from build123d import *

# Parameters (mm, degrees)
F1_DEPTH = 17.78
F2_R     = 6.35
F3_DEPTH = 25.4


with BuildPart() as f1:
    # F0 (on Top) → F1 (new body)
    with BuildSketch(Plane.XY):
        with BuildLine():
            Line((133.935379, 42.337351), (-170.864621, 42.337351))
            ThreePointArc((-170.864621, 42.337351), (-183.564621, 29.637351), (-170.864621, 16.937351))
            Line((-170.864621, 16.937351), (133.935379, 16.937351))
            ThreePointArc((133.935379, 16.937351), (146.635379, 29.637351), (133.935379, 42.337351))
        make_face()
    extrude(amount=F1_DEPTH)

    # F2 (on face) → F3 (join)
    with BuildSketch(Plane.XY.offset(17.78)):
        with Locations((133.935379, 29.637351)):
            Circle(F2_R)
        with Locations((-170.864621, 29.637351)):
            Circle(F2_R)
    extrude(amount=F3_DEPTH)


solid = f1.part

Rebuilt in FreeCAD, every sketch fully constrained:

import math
import FreeCAD as App
import Part
import Sketcher

V = App.Vector
Q = App.Units.Quantity

doc = App.newDocument("Part")
body = doc.addObject("PartDesign::Body", "Body")

sketch1 = doc.addObject("Sketcher::SketchObject", "Sketch")
body.addObject(sketch1)
sketch1.AttachmentSupport = (doc.XY_Plane, [""])
sketch1.MapMode = "FlatFace"
sketch1.addGeometry(Part.LineSegment(V(134, 42, 0), V(-171, 42, 0)), False)
sketch1.addGeometry(Part.ArcOfCircle(Part.Circle(V(-171, 30, 0), V(0, 0, 1), 13), math.radians(90), math.radians(270)), False)
sketch1.addGeometry(Part.LineSegment(V(-171, 17, 0), V(134, 17, 0)), False)
sketch1.addGeometry(Part.ArcOfCircle(Part.Circle(V(134, 30, 0), V(0, 0, 1), 13), math.radians(-90), math.radians(90)), False)
sketch1.addConstraint(Sketcher.Constraint("Tangent", 0, 2, 1, 1))
sketch1.addConstraint(Sketcher.Constraint("Tangent", 1, 2, 2, 1))
sketch1.addConstraint(Sketcher.Constraint("Tangent", 2, 2, 3, 1))
sketch1.addConstraint(Sketcher.Constraint("Tangent", 3, 2, 0, 1))
sketch1.addConstraint(Sketcher.Constraint("Horizontal", 0))
sketch1.addConstraint(Sketcher.Constraint("Horizontal", 2))
sketch1.addConstraint(Sketcher.Constraint("Radius", 1, Q("0.5 in")))
sketch1.addConstraint(Sketcher.Constraint("DistanceX", 0, 2, 0, 1, Q("12 in")))
sketch1.addConstraint(Sketcher.Constraint("DistanceX", 1, 3, -1, 1, Q("170.864621 mm")))
sketch1.addConstraint(Sketcher.Constraint("DistanceY", -1, 1, 1, 3, Q("29.637351 mm")))
pad1 = doc.addObject("PartDesign::Pad", "Pad")
body.addObject(pad1)
pad1.Profile = sketch1
pad1.Length = Q("0.7 in")

sketch2 = doc.addObject("Sketcher::SketchObject", "Sketch001")
body.addObject(sketch2)
sketch2.AttachmentSupport = (doc.XY_Plane, [""])
sketch2.MapMode = "FlatFace"
sketch2.AttachmentOffset = App.Placement(V(0, 0, 0.7 * 25.4), App.Rotation())
sketch2.addGeometry(Part.Circle(V(134, 30, 0), V(0, 0, 1), 6), False)
sketch2.addGeometry(Part.Circle(V(-171, 30, 0), V(0, 0, 1), 6), False)
sketch2.addConstraint(Sketcher.Constraint("Equal", 0, 1))
sketch2.addConstraint(Sketcher.Constraint("Horizontal", 0, 3, 1, 3))
sketch2.addConstraint(Sketcher.Constraint("Diameter", 0, Q("0.5 in")))
sketch2.addConstraint(Sketcher.Constraint("DistanceX", 1, 3, 0, 3, Q("12 in")))
sketch2.addConstraint(Sketcher.Constraint("DistanceX", -1, 1, 0, 3, Q("133.935379 mm")))
sketch2.addConstraint(Sketcher.Constraint("DistanceY", -1, 1, 0, 3, Q("29.637351 mm")))
pad2 = doc.addObject("PartDesign::Pad", "Pad001")
body.addObject(pad2)
pad2.Profile = sketch2
pad2.Length = Q("1 in")

doc.recompute()
